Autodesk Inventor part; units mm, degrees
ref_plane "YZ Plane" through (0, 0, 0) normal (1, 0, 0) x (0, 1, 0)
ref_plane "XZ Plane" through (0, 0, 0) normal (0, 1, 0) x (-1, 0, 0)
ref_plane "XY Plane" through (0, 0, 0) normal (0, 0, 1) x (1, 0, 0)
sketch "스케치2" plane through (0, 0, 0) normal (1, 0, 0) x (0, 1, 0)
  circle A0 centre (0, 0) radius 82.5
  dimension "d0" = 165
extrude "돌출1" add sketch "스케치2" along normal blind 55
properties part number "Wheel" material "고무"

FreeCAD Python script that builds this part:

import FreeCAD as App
import Part
import Sketcher

V = App.Vector
Q = App.Units.Quantity

doc = App.newDocument("Part")
params = doc.addObject("Spreadsheet::Sheet", "Params")
for row, (alias, value) in enumerate([
    ("sketch1_diameter", "165 mm"),
    ("pad1_length", "55 mm"),
], start=1):
    params.set(f"A{row}", alias)
    params.set(f"B{row}", "=" + value)
    params.setAlias(f"B{row}", alias)

body = doc.addObject("PartDesign::Body", "Body")

# Sketch on YZ plane
sketch1 = doc.addObject("Sketcher::SketchObject", "Sketch")
body.addObject(sketch1)
sketch1.AttachmentSupport = (doc.YZ_Plane, [""])
sketch1.MapMode = "FlatFace"
sketch1.addGeometry(Part.Circle(V(0, 0, 0), V(0, 0, 1), 82), False)
sketch1.addConstraint([
    Sketcher.Constraint("Coincident", 0, 3, -1, 1),
    Sketcher.Constraint("Diameter", 0, Q("165 mm")),
])
sketch1.setExpression("Constraints[1]", "Params.sketch1_diameter")
pad1 = doc.addObject("PartDesign::Pad", "Pad")
body.addObject(pad1)
pad1.Profile = sketch1
pad1.setExpression("Length", "Params.pad1_length")

doc.recompute()
